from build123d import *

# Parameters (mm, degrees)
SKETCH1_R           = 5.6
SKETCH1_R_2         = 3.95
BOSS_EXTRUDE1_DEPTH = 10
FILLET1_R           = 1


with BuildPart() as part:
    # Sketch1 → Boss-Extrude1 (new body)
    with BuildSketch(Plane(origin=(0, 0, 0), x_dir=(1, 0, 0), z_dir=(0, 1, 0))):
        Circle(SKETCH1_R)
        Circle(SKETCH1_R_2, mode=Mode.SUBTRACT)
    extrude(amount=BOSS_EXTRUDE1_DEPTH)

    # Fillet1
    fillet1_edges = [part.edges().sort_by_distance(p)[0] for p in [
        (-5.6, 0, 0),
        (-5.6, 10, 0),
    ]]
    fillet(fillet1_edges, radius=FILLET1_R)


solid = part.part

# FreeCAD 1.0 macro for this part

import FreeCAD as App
import Part
import Sketcher
from FreeCAD import Vector
Q = App.Units.Quantity


def edges_at(feature, points):
    """Names of the edges that pass closest to the given points."""
    edges = feature.Shape.Edges
    near = lambda p: min(range(len(edges)), key=lambda i: edges[i].distToShape(Part.Vertex(*p))[0])
    return sorted({f"Edge{near(p) + 1}" for p in points})

doc = App.newDocument("Part")
body = doc.addObject("PartDesign::Body", "Body")

# Sketch on XZ plane
sketch1 = doc.addObject("Sketcher::SketchObject", "Sketch")
body.addObject(sketch1)
sketch1.AttachmentSupport = (doc.XZ_Plane, [""])
sketch1.MapMode = "FlatFace"
sketch1.addGeometry(Part.Circle(Vector(0, 0, 0), Vector(0, 0, 1), 5.6), False)
sketch1.addGeometry(Part.Circle(Vector(0, 0, 0), Vector(0, 0, 1), 4), False)
sketch1.addConstraint(Sketcher.Constraint("Coincident", 0, 3, -1, 1))
sketch1.addConstraint(Sketcher.Constraint("Coincident", 1, 3, -1, 1))
sketch1.addConstraint(Sketcher.Constraint("Diameter", 0, Q("11.2 mm")))
sketch1.addConstraint(Sketcher.Constraint("Diameter", 1, Q("7.9 mm")))
pad1 = doc.addObject("PartDesign::Pad", "Pad")
body.addObject(pad1)
pad1.Profile = sketch1
pad1.Length = 10
pad1.Reversed = True
doc.recompute()

fillet = doc.addObject("PartDesign::Fillet", "Fillet")
body.addObject(fillet)
fillet.Base = (pad1, edges_at(pad1, [(-5.6, 0, 0), (-5.6, 10, 0)]))
fillet.Radius = 1

doc.recompute()
